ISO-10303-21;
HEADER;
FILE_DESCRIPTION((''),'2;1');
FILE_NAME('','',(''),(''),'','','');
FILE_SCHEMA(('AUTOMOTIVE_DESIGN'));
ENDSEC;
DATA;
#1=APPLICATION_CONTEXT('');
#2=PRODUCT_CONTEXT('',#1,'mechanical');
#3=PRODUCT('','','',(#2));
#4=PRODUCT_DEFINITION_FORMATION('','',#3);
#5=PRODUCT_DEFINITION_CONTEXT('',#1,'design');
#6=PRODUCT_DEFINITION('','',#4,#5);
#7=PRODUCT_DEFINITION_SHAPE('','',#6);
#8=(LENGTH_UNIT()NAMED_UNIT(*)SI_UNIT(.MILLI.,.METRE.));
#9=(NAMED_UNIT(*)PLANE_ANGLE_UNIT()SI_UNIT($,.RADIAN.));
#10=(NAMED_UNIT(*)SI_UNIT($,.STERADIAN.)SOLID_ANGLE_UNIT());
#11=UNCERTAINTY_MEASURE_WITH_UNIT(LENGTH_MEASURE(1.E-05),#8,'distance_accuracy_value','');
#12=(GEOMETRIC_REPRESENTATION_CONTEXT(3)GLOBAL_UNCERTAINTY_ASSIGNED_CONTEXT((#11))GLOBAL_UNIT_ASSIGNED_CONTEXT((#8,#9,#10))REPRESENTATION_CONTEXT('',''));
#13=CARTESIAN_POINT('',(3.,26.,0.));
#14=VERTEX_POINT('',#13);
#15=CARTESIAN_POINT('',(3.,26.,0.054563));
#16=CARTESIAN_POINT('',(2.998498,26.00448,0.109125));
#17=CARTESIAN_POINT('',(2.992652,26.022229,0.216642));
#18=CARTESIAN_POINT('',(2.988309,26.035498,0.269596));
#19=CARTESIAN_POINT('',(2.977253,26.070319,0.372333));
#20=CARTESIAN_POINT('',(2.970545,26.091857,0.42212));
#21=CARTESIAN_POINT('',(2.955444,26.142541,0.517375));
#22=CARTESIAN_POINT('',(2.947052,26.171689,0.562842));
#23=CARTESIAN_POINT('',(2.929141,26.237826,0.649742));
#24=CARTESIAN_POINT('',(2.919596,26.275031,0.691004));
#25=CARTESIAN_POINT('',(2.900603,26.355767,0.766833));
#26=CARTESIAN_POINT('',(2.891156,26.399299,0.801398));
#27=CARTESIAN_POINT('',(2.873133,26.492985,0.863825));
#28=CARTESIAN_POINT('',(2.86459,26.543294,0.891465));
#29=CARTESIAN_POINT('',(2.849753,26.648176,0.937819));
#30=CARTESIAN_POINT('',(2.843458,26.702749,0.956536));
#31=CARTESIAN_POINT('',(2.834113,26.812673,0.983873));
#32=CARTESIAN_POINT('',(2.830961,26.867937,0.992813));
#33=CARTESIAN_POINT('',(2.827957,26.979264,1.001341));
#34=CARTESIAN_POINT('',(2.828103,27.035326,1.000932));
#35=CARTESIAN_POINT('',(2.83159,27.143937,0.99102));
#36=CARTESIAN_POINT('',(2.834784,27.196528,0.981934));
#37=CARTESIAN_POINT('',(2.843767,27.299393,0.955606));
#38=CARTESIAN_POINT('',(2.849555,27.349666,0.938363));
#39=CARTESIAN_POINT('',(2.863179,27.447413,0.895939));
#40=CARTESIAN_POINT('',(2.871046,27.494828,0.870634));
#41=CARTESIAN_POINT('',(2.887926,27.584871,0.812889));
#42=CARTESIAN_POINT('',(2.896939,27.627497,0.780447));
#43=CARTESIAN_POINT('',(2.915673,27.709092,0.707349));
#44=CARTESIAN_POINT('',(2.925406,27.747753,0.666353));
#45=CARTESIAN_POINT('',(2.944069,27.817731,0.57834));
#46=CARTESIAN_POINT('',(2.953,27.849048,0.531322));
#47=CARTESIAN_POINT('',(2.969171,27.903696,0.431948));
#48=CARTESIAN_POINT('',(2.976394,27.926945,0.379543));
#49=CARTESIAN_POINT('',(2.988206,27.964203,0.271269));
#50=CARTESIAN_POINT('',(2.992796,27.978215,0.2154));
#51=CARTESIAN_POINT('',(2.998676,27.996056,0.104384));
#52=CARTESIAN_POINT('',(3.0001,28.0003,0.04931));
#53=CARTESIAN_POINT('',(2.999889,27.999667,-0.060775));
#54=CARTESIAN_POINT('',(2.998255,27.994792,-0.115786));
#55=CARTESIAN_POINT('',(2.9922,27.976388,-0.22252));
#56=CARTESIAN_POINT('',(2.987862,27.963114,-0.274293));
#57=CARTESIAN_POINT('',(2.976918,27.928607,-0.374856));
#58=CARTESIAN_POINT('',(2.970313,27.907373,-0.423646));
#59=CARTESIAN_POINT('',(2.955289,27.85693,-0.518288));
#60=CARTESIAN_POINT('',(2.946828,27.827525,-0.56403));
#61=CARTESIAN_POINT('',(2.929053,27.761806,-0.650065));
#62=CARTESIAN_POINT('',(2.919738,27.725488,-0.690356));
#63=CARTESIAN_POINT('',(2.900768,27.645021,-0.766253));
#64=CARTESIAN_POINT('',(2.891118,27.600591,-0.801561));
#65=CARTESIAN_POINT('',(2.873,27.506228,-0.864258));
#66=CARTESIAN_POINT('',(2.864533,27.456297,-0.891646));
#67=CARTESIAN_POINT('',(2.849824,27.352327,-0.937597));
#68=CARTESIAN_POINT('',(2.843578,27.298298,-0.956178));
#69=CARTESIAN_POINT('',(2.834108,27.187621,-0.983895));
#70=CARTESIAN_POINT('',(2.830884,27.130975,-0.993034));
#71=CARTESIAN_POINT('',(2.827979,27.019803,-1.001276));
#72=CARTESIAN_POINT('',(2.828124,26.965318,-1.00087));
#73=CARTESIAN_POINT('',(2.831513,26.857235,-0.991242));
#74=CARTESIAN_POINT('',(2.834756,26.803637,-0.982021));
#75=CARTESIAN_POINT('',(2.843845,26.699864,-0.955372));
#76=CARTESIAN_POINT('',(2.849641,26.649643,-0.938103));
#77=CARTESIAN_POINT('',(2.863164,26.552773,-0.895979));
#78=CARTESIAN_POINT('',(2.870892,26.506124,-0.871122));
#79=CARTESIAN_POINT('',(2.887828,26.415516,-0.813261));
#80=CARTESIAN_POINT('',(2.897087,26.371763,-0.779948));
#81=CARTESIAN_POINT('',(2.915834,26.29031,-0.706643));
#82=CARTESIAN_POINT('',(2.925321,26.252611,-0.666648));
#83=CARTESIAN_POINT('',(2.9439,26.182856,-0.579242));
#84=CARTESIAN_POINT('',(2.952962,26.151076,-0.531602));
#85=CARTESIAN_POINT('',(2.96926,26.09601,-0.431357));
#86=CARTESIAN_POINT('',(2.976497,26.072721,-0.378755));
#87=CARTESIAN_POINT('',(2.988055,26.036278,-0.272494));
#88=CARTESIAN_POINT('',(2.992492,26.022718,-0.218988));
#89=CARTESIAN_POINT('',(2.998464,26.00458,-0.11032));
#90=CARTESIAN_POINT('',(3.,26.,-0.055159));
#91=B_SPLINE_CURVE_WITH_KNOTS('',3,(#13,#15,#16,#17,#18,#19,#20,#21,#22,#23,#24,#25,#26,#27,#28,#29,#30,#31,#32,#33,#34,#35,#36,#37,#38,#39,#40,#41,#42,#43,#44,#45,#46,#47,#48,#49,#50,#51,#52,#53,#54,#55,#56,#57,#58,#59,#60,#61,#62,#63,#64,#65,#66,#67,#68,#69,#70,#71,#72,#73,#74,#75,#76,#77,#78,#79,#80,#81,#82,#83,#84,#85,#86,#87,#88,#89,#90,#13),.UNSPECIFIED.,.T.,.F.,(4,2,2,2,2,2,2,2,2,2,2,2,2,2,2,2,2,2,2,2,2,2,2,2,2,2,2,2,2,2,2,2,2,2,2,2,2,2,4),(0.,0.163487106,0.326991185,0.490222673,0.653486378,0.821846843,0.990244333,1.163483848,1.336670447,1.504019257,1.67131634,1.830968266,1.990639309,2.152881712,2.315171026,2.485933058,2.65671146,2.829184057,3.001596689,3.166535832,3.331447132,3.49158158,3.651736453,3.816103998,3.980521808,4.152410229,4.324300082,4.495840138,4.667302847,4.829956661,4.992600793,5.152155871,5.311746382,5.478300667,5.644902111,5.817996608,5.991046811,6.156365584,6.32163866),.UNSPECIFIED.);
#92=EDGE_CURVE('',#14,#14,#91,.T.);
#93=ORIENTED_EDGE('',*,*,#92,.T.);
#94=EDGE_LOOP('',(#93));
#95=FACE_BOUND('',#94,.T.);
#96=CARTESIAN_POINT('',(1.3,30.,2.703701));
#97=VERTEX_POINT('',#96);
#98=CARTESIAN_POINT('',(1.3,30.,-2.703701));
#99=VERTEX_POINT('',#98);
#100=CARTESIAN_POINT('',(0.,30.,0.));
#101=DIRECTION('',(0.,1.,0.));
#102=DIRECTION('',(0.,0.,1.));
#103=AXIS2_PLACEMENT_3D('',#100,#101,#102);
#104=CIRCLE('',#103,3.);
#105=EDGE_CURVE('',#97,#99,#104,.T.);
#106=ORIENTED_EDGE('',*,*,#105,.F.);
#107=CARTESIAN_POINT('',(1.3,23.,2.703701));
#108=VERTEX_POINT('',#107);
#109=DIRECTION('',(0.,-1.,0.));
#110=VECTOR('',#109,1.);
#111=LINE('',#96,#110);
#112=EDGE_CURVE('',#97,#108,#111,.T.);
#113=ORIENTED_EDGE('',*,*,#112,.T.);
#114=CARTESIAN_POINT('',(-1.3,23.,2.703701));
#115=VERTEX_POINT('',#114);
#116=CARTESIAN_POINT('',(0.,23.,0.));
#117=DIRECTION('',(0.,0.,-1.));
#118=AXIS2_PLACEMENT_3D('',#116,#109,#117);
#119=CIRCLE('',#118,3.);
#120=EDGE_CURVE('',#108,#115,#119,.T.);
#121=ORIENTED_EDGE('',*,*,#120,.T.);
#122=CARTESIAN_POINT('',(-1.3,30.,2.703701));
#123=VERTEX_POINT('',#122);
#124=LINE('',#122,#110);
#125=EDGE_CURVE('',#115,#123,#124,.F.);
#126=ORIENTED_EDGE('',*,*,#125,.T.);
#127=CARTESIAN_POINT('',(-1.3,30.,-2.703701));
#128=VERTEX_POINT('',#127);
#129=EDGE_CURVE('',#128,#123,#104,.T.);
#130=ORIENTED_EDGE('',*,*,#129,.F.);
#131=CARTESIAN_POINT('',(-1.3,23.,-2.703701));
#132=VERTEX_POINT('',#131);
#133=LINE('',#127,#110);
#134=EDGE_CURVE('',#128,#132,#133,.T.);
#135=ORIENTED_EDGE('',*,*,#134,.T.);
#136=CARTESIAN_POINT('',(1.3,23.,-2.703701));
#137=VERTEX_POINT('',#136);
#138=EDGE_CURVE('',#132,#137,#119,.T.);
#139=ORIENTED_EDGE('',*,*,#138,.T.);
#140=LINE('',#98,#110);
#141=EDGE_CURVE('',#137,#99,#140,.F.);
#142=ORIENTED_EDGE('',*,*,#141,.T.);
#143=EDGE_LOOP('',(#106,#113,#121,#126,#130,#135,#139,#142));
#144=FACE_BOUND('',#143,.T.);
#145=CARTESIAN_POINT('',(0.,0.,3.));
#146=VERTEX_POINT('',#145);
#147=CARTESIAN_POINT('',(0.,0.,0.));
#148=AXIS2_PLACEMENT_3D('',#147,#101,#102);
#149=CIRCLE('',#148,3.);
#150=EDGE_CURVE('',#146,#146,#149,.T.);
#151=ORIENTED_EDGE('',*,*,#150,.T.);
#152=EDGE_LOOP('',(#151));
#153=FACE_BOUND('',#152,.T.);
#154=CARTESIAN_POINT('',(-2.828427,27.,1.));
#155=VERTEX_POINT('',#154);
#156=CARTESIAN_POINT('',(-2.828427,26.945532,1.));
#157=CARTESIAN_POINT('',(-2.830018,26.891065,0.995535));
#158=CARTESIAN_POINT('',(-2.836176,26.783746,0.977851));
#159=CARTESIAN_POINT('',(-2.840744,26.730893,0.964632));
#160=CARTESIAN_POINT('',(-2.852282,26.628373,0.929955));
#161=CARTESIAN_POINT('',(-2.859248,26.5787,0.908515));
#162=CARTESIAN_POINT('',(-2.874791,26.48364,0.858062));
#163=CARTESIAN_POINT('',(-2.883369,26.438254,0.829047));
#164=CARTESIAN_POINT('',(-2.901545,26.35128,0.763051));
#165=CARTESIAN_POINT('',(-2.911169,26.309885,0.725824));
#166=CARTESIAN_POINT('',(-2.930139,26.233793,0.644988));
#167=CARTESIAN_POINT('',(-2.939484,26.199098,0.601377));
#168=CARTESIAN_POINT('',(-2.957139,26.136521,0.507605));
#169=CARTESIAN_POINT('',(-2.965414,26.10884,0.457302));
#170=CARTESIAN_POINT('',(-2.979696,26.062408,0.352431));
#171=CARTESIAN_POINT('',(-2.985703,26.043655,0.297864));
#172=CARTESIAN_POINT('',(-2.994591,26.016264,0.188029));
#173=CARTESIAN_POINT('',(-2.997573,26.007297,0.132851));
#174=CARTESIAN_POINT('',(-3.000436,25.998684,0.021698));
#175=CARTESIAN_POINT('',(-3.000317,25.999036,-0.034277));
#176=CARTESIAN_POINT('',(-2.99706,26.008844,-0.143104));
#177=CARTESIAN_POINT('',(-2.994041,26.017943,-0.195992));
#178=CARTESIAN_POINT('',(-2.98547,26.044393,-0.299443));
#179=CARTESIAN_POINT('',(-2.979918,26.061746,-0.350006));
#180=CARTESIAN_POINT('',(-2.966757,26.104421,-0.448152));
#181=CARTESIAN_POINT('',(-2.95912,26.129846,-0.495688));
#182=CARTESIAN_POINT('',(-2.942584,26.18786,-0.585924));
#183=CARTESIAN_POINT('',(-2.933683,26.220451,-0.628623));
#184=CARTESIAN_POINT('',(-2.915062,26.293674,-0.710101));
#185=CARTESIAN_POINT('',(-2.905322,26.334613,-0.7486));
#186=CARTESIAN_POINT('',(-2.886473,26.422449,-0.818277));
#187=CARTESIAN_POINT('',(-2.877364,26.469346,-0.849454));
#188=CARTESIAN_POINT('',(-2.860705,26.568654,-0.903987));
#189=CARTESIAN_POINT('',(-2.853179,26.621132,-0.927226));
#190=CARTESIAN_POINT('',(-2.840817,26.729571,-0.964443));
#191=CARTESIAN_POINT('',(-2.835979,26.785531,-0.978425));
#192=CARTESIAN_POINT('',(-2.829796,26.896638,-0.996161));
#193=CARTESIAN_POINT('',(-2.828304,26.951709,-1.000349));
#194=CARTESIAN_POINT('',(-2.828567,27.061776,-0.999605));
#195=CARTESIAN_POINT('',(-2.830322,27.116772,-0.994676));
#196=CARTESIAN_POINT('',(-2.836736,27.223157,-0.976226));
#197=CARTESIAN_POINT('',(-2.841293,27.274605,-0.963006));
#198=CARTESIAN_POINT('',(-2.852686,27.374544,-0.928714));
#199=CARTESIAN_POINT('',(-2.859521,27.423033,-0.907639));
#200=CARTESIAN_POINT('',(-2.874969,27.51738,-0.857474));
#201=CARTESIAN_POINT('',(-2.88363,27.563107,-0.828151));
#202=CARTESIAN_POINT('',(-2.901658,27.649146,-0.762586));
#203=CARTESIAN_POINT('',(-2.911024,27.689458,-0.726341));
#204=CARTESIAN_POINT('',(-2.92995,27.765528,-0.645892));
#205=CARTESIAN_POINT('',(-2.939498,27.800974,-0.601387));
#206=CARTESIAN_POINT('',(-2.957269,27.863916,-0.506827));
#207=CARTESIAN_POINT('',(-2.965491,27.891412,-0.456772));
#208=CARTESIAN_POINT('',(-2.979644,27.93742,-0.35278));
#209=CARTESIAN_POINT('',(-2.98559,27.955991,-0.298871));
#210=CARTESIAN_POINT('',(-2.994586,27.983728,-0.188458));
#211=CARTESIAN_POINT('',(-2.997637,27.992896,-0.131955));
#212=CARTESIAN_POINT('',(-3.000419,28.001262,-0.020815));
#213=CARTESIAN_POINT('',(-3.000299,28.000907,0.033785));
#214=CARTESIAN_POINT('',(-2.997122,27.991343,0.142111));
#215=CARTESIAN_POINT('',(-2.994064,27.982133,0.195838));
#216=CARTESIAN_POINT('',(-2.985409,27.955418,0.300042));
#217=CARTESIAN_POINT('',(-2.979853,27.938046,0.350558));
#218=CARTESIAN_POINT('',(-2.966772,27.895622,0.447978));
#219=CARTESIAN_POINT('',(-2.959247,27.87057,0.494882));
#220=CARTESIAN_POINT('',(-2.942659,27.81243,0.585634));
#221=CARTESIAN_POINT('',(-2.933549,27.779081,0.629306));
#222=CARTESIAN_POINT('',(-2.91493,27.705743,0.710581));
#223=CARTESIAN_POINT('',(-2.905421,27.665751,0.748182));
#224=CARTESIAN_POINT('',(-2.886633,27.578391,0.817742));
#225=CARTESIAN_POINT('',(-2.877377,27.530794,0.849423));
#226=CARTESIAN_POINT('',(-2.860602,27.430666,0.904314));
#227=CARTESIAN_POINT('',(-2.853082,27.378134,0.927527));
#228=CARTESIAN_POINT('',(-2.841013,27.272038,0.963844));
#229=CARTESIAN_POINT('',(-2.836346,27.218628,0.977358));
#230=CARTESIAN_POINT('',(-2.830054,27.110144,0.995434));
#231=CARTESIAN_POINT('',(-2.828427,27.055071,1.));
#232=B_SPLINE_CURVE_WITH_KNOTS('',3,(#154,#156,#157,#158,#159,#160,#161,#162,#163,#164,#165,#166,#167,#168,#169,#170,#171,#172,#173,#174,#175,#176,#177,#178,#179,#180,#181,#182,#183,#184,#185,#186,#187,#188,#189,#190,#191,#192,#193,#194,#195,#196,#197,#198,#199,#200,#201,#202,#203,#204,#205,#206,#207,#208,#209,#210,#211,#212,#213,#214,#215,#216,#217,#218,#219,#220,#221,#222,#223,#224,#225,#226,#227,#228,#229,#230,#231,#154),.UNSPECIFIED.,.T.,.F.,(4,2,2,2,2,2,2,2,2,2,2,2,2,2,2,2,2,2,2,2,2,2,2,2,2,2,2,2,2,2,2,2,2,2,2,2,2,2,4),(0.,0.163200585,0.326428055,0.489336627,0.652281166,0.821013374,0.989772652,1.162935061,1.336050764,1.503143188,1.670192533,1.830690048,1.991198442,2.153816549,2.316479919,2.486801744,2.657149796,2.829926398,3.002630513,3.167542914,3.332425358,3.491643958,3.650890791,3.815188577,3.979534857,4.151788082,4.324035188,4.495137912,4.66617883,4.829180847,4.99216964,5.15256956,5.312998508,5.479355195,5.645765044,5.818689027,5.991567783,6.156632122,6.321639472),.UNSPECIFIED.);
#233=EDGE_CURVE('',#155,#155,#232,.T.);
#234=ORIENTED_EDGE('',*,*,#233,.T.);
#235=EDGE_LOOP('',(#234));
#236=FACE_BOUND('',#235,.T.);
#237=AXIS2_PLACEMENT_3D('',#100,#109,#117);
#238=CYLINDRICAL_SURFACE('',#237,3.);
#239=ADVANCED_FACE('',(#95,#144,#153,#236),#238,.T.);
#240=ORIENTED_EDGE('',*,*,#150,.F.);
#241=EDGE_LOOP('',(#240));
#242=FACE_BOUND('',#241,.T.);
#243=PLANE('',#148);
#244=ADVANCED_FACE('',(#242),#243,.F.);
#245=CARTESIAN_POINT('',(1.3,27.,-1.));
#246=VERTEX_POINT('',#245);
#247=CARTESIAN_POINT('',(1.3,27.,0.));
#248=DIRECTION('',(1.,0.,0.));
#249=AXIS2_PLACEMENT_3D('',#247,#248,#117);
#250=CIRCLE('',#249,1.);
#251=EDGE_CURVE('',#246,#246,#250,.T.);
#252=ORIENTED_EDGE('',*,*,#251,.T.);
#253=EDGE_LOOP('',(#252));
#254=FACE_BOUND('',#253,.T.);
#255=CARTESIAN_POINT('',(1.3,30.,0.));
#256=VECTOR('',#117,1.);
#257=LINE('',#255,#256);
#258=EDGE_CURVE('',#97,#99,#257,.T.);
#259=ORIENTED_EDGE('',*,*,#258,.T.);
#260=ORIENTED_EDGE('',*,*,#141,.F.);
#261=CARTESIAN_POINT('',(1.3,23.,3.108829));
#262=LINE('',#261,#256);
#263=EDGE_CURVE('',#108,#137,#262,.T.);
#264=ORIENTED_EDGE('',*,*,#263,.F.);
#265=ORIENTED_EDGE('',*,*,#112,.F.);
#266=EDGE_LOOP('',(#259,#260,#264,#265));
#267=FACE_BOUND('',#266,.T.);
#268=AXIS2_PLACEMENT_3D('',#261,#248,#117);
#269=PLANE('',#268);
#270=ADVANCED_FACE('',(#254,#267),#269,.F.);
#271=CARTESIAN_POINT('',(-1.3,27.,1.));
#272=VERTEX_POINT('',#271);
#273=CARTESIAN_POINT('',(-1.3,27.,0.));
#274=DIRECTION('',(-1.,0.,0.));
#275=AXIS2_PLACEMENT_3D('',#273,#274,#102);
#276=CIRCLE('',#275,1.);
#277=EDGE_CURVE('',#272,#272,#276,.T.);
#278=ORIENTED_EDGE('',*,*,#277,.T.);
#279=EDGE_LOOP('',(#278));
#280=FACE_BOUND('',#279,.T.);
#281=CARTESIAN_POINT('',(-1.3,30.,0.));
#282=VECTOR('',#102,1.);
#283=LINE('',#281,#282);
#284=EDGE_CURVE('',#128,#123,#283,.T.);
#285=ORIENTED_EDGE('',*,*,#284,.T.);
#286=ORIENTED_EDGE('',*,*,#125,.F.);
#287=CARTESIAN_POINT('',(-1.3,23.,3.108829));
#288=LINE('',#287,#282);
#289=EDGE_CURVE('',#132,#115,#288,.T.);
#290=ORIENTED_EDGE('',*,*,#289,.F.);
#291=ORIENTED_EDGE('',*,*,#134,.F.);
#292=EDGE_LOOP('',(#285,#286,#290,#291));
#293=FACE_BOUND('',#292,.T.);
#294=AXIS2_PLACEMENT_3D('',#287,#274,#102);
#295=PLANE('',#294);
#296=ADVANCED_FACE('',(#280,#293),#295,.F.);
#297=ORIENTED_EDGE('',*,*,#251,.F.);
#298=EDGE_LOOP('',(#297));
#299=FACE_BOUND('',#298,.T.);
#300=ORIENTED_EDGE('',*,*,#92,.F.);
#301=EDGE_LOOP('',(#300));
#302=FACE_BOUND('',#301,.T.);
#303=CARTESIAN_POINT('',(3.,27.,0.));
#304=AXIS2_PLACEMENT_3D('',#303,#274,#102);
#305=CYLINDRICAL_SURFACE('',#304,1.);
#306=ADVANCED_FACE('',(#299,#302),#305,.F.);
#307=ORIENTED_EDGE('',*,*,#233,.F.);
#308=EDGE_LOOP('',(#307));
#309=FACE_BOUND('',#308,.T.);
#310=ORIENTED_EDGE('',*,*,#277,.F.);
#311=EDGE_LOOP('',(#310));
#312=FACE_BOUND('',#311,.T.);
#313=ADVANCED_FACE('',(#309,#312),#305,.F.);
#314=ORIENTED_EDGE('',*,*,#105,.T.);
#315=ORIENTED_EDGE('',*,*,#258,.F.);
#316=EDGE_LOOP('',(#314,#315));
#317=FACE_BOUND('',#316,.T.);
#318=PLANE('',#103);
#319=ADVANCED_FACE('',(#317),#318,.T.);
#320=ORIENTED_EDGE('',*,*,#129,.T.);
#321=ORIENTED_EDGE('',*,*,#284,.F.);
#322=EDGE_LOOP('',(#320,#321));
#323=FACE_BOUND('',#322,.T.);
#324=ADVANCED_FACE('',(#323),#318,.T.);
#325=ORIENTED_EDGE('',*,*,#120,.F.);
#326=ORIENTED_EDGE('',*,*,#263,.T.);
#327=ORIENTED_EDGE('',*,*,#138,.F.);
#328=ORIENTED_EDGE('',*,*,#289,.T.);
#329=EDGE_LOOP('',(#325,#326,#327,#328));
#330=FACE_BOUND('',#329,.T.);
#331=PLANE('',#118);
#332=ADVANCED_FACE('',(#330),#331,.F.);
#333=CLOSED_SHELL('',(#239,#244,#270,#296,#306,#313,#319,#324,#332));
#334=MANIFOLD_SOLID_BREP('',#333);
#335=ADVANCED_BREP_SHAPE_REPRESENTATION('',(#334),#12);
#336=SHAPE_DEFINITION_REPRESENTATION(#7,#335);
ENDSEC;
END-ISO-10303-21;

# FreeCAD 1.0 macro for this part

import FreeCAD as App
import Part
import Sketcher

V = App.Vector
Q = App.Units.Quantity


def add_polygon(sketch, points):
    """Adds a closed chain of lines whose ends are joined by coincident constraints."""
    first, n = sketch.GeometryCount, len(points)
    for a, b in zip(points, points[1:] + points[:1]):
        sketch.addGeometry(Part.LineSegment(App.Vector(*a, 0), App.Vector(*b, 0)), False)
    for i in range(n):
        sketch.addConstraint(Sketcher.Constraint("Coincident", first + i, 2, first + (i + 1) % n, 1))

doc = App.newDocument("Part")
body = doc.addObject("PartDesign::Body", "Body")

# Sketch on XZ plane
sketch1 = doc.addObject("Sketcher::SketchObject", "Sketch")
body.addObject(sketch1)
sketch1.AttachmentSupport = (doc.XZ_Plane, [""])
sketch1.MapMode = "FlatFace"
sketch1.addGeometry(Part.Circle(V(0, 0, 0), V(0, 0, 1), 3), False)
sketch1.addConstraint([
    Sketcher.Constraint("Coincident", 0, 3, -1, 1),
    Sketcher.Constraint("Diameter", 0, Q("6 mm")),
])
pad1 = doc.addObject("PartDesign::Pad", "Pad")
body.addObject(pad1)
pad1.Profile = sketch1
pad1.Length = 30
pad1.Reversed = True

# Sketch on XZ plane
sketch2 = doc.addObject("Sketcher::SketchObject", "Sketch001")
body.addObject(sketch2)
sketch2.AttachmentSupport = (doc.XZ_Plane, [""])
sketch2.MapMode = "FlatFace"
sketch2.AttachmentOffset = App.Placement(V(0, 0, -30), App.Rotation())
add_polygon(sketch2, [(-1.3, -3.1), (-1.3, 3.1), (1.3, 3.1), (1.3, -3.1)])  # lines 0-3
sketch2.addConstraint([
    Sketcher.Constraint("Vertical", 0),
    Sketcher.Constraint("Horizontal", 1),
    Sketcher.Constraint("Vertical", 2),
    Sketcher.Constraint("Horizontal", 3),
    Sketcher.Constraint("Symmetric", 0, 2, 2, 2, -1, 1),
    Sketcher.Constraint("DistanceX", 1, 1, 1, 2, Q("2.6 mm")),
    Sketcher.Constraint("DistanceY", 0, 1, 0, 2, Q("6.217659 mm")),
])
pocket1 = doc.addObject("PartDesign::Pocket", "Pocket")
body.addObject(pocket1)
pocket1.Profile = sketch2
pocket1.Length = 7
pocket1.Reversed = True

# Sketch on YZ plane
sketch3 = doc.addObject("Sketcher::SketchObject", "Sketch002")
body.addObject(sketch3)
sketch3.AttachmentSupport = (doc.YZ_Plane, [""])
sketch3.MapMode = "FlatFace"
sketch3.AttachmentOffset = App.Placement(V(0, 0, 1.3), App.Rotation())
sketch3.addGeometry(Part.Circle(V(27, 0, 0), V(0, 0, 1), 1), False)
sketch3.addConstraint([
    Sketcher.Constraint("PointOnObject", 0, 3, -1),
    Sketcher.Constraint("Diameter", 0, Q("2 mm")),
    Sketcher.Constraint("DistanceX", -1, 1, 0, 3, Q("27 mm")),
])
pocket2 = doc.addObject("PartDesign::Pocket", "Pocket001")
body.addObject(pocket2)
pocket2.Profile = sketch3
pocket2.Type = "ThroughAll"
pocket2.Midplane = True

doc.recompute()
